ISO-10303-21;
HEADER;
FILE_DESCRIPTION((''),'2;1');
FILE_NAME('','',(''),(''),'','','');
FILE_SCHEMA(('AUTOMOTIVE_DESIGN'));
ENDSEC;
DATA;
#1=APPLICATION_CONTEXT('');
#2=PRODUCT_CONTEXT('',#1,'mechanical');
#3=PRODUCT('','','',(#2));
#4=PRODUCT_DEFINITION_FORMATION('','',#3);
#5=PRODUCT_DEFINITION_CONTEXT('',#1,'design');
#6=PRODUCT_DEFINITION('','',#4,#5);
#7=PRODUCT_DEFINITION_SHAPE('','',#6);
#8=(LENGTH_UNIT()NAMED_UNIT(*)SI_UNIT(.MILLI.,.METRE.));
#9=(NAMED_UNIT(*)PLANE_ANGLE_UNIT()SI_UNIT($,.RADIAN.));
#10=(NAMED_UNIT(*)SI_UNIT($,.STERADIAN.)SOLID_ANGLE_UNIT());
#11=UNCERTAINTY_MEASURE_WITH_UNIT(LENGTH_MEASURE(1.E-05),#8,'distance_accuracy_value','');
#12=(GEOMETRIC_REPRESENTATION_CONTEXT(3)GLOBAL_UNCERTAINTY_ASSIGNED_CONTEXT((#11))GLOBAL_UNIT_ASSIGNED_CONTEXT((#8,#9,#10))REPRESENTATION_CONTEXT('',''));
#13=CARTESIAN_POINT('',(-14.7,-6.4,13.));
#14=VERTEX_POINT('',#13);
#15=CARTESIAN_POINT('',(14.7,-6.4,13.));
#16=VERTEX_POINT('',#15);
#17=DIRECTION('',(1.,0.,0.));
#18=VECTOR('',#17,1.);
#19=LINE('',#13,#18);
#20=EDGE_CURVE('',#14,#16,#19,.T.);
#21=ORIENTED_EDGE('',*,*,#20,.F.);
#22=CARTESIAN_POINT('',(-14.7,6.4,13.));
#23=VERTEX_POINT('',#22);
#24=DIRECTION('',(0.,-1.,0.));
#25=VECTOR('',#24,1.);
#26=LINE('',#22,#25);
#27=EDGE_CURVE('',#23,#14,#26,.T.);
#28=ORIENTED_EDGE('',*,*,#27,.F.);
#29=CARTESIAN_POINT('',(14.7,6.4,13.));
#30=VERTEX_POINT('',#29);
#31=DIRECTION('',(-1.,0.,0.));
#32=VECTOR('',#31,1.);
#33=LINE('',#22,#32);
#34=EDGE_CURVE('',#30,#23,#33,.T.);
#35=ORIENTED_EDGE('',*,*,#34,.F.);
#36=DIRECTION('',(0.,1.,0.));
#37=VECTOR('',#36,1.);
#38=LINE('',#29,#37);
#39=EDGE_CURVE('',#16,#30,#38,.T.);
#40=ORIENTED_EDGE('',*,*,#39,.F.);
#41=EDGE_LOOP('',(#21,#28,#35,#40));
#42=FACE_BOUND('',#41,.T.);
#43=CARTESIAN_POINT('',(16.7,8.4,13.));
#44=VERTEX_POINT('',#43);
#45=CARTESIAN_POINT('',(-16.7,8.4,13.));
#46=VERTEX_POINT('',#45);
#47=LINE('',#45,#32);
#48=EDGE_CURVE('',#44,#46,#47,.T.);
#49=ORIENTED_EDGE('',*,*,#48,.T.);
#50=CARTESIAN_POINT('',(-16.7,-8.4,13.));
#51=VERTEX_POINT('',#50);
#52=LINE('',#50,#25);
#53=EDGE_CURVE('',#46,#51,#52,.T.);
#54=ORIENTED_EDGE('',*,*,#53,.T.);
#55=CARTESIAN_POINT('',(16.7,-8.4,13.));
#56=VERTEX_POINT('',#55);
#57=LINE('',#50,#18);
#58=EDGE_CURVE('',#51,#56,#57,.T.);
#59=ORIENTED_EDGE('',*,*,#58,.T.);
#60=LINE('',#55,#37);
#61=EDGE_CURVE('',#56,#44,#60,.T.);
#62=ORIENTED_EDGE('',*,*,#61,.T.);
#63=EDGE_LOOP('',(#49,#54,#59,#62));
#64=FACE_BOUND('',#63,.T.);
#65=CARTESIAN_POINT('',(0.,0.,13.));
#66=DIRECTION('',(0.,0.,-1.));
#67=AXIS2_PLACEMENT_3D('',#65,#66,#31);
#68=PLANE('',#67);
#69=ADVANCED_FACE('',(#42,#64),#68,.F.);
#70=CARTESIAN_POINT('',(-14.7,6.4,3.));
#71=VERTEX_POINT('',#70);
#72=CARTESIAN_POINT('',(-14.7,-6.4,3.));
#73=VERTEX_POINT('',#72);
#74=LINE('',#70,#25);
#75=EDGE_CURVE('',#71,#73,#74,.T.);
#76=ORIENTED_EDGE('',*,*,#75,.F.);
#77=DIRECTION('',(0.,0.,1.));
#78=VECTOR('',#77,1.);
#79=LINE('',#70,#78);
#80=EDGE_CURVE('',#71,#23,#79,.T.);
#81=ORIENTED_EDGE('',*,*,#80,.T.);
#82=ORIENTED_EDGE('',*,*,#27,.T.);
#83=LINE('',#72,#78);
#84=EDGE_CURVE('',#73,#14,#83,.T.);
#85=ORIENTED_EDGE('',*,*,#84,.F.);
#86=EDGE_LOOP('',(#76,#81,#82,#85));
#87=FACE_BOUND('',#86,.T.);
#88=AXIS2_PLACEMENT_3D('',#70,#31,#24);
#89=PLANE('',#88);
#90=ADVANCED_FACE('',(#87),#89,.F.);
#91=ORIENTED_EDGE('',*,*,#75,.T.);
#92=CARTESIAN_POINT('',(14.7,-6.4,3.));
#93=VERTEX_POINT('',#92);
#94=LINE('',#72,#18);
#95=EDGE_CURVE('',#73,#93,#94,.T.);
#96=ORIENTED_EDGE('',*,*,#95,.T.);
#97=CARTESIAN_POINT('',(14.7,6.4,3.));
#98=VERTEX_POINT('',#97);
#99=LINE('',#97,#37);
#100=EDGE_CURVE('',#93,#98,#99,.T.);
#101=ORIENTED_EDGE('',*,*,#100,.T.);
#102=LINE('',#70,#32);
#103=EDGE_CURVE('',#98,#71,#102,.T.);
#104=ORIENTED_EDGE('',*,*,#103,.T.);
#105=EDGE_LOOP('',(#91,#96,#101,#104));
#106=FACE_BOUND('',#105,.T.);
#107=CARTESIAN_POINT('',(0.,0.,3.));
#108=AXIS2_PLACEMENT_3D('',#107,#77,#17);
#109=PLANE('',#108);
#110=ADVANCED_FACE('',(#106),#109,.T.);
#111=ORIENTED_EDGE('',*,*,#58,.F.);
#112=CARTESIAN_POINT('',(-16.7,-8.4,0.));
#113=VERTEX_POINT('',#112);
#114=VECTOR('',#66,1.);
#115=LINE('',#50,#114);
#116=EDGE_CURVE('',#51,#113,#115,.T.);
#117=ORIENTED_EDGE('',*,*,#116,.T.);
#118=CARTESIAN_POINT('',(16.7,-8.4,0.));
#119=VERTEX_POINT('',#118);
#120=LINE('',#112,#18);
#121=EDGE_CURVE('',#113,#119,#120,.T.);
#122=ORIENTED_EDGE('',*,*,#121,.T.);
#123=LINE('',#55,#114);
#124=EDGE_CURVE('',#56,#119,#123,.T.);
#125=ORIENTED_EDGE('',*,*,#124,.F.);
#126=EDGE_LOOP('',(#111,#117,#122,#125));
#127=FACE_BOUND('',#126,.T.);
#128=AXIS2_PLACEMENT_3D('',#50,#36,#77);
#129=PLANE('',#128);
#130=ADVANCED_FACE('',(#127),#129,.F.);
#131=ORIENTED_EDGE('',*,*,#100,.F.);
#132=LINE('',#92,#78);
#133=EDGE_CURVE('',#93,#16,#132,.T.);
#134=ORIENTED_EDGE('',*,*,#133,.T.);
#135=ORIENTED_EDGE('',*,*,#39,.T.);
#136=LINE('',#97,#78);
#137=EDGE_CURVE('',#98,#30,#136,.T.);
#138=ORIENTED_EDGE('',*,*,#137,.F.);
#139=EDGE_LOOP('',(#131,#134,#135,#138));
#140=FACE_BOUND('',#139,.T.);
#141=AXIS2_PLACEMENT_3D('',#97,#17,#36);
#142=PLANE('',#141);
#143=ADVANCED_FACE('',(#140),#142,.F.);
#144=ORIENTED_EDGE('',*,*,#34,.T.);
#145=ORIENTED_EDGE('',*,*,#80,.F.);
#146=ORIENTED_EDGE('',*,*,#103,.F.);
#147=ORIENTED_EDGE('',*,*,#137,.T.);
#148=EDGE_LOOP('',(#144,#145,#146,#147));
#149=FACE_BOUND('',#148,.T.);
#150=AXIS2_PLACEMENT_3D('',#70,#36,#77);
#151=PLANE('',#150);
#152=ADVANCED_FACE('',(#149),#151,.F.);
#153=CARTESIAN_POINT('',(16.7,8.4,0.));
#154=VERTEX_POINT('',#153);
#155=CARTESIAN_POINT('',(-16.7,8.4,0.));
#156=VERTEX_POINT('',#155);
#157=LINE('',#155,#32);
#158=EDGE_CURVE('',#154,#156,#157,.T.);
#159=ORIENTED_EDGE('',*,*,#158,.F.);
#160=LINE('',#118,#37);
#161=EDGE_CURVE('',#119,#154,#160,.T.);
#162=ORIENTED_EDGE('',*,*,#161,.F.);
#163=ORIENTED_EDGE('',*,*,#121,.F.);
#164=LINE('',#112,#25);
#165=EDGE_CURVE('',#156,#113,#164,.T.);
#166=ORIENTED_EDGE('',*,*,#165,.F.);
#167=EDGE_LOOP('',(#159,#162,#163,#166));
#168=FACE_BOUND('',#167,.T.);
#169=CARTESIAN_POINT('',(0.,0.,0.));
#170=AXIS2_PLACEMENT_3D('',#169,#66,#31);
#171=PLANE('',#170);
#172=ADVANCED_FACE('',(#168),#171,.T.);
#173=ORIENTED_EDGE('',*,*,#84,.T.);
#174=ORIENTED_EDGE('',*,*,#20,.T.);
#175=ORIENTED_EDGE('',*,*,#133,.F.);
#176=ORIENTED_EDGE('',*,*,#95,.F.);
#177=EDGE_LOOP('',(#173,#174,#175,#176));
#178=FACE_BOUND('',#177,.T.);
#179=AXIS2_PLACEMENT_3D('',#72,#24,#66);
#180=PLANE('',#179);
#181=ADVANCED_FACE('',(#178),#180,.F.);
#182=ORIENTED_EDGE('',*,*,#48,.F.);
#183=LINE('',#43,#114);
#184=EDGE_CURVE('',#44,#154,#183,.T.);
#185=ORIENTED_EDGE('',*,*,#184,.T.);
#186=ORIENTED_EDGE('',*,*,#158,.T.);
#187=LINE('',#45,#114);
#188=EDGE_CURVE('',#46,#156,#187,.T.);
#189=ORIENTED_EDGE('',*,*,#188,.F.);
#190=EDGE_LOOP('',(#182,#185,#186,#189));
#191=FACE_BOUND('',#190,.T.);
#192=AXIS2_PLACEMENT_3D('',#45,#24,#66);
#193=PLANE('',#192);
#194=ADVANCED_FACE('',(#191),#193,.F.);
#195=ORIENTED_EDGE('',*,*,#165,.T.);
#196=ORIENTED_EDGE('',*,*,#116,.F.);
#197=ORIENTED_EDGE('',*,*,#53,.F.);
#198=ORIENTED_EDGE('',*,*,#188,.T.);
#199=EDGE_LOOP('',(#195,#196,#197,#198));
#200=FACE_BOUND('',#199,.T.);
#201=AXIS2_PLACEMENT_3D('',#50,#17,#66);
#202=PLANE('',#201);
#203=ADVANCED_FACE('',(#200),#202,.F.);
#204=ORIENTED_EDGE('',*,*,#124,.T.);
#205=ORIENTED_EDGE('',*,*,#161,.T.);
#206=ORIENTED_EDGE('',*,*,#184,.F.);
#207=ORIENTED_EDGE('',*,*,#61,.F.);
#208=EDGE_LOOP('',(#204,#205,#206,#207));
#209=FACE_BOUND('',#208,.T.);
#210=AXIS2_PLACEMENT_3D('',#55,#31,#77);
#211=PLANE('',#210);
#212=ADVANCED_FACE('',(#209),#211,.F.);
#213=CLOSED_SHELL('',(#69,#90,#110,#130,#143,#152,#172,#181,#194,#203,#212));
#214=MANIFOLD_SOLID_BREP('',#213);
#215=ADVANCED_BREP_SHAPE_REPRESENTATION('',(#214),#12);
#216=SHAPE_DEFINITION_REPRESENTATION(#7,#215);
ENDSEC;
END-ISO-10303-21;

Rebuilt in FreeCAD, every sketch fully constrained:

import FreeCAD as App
import Part
import Sketcher

V = App.Vector
Q = App.Units.Quantity


def add_polygon(sketch, points):
    """Adds a closed chain of lines whose ends are joined by coincident constraints."""
    first, n = sketch.GeometryCount, len(points)
    for a, b in zip(points, points[1:] + points[:1]):
        sketch.addGeometry(Part.LineSegment(App.Vector(*a, 0), App.Vector(*b, 0)), False)
    for i in range(n):
        sketch.addConstraint(Sketcher.Constraint("Coincident", first + i, 2, first + (i + 1) % n, 1))

doc = App.newDocument("Part")
body = doc.addObject("PartDesign::Body", "Body")

# Sketch on XY plane
sketch1 = body.newObject("Sketcher::SketchObject", "Sketch")
sketch1.AttachmentSupport = (doc.getObject("XY_Plane"), [""])
sketch1.MapMode = "FlatFace"
add_polygon(sketch1, [(-16.7, 8.4), (-16.7, -8.4), (16.7, -8.4), (16.7, 8.4)])  # lines 0-3
sketch1.addConstraint([
    Sketcher.Constraint("Vertical", 0),
    Sketcher.Constraint("Horizontal", 1),
    Sketcher.Constraint("Vertical", 2),
    Sketcher.Constraint("Horizontal", 3),
    Sketcher.Constraint("Symmetric", 0, 2, 2, 2, -1, 1),
    Sketcher.Constraint("DistanceX", 1, 1, 1, 2, Q("33.4 mm")),
    Sketcher.Constraint("DistanceY", 0, 2, 0, 1, Q("16.8 mm")),
])
pad1 = body.newObject("PartDesign::Pad", "Pad")
pad1.Profile = sketch1
pad1.Length = 13

# Sketch on XY plane
sketch2 = body.newObject("Sketcher::SketchObject", "Sketch001")
sketch2.AttachmentSupport = (doc.getObject("XY_Plane"), [""])
sketch2.MapMode = "FlatFace"
sketch2.AttachmentOffset = App.Placement(V(0, 0, 13), App.Rotation())
add_polygon(sketch2, [(-14.7, 6.4), (-14.7, -6.4), (14.7, -6.4), (14.7, 6.4)])  # lines 0-3
sketch2.addConstraint([
    Sketcher.Constraint("Vertical", 0),
    Sketcher.Constraint("Horizontal", 1),
    Sketcher.Constraint("Vertical", 2),
    Sketcher.Constraint("Horizontal", 3),
    Sketcher.Constraint("Symmetric", 0, 2, 2, 2, -1, 1),
    Sketcher.Constraint("DistanceX", 1, 1, 1, 2, Q("29.4 mm")),
    Sketcher.Constraint("DistanceY", 0, 2, 0, 1, Q("12.8 mm")),
])
pocket1 = body.newObject("PartDesign::Pocket", "Pocket")
pocket1.Profile = sketch2
pocket1.Length = 10

doc.recompute()
